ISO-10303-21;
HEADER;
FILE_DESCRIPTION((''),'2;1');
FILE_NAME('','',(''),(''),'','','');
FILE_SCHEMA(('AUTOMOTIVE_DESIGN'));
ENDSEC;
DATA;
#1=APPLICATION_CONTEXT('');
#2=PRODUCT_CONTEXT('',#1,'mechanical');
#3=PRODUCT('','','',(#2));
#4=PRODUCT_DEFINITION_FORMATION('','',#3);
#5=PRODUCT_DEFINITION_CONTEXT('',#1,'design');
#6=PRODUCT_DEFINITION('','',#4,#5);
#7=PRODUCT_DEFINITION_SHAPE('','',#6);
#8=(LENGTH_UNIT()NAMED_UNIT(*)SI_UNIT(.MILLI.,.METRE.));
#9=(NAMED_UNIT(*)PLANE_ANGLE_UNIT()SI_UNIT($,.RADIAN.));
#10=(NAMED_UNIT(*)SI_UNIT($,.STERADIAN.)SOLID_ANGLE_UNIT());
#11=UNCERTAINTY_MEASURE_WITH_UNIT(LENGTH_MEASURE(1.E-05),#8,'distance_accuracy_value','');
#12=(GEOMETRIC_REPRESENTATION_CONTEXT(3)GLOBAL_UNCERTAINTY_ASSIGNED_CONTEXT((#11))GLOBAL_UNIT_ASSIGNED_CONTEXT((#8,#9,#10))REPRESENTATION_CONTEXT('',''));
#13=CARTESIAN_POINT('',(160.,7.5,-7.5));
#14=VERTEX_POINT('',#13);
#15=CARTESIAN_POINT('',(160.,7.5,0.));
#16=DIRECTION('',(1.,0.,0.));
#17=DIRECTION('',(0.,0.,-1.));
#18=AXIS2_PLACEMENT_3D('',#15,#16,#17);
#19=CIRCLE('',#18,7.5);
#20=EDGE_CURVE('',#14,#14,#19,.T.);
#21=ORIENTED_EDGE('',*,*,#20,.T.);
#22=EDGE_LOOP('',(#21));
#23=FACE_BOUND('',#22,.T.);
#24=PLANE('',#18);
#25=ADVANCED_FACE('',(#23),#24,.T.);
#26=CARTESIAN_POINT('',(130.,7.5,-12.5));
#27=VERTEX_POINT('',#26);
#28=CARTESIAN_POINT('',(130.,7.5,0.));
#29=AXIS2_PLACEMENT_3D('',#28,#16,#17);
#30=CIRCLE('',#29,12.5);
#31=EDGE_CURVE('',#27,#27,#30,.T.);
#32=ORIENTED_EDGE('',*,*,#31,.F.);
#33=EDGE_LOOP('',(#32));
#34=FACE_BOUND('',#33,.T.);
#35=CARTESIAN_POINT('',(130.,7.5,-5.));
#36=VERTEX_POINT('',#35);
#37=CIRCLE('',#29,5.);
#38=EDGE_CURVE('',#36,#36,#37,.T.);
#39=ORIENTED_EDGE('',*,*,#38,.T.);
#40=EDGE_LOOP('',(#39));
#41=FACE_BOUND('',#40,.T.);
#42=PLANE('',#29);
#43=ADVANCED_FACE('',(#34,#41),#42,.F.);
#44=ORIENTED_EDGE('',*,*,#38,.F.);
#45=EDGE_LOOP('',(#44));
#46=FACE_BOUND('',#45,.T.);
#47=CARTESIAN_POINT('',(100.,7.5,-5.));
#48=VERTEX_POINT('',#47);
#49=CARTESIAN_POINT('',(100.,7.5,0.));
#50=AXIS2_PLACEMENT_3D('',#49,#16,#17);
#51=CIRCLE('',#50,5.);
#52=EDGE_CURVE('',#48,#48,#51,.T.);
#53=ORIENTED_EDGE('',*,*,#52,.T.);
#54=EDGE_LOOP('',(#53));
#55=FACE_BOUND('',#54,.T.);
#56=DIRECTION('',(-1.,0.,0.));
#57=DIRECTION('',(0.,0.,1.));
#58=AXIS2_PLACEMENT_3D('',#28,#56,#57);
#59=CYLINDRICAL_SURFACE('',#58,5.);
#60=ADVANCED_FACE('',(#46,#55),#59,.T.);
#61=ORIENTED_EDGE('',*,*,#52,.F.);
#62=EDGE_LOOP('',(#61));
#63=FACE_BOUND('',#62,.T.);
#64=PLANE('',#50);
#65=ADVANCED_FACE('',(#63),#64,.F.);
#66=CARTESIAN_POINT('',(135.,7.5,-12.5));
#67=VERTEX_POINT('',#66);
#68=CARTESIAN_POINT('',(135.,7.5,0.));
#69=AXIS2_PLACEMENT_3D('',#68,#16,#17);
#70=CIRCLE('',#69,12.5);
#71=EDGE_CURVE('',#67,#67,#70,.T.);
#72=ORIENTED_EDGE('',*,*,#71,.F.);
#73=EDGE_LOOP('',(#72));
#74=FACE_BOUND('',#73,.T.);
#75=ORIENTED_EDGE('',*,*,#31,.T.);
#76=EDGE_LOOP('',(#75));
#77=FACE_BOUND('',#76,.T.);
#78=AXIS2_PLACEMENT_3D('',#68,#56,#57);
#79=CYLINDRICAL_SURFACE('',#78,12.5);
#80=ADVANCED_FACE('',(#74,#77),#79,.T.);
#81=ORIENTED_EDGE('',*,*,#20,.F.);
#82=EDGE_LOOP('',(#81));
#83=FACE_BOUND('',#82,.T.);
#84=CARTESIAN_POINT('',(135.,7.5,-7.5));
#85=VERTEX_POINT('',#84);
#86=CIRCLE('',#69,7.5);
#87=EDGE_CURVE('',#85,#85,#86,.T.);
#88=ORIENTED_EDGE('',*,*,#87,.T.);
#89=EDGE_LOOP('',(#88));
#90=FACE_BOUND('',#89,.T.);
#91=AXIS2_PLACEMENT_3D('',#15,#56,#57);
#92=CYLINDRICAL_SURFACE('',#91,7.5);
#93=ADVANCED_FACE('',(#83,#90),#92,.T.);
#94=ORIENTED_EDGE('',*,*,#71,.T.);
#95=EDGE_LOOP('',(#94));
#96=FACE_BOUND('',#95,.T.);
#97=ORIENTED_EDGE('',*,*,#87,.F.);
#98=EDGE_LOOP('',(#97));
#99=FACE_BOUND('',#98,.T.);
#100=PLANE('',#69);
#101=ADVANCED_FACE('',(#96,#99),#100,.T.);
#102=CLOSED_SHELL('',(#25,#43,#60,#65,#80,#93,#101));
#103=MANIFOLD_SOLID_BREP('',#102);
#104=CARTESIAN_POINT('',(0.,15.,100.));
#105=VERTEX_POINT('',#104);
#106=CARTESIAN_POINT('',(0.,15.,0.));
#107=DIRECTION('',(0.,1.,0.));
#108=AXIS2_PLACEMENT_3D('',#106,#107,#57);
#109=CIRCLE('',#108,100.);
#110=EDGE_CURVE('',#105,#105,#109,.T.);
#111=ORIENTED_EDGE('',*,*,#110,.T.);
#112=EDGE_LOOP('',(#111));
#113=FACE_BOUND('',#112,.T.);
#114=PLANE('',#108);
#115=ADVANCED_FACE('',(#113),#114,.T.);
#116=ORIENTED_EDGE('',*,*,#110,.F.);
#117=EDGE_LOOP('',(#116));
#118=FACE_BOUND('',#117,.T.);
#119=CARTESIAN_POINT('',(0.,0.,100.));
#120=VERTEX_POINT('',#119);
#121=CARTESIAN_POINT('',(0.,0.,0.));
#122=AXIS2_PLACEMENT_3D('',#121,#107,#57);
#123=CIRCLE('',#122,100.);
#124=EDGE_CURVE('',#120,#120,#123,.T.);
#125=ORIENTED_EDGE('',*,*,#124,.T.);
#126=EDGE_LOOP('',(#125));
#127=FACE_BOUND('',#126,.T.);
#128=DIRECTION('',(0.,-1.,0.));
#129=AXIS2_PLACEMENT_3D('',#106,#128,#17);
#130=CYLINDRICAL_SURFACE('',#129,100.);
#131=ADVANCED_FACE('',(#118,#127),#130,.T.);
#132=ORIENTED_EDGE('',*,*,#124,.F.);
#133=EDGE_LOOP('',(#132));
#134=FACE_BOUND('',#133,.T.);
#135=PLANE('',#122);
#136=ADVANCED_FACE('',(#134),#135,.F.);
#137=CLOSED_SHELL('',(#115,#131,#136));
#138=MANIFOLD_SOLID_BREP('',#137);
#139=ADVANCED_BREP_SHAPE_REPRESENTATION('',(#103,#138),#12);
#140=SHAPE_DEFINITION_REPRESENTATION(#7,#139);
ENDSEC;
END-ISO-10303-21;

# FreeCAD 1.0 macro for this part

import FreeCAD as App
import Part
import Sketcher
Q = App.Units.Quantity

doc = App.newDocument("Part")
params = doc.addObject("Spreadsheet::Sheet", "Params")
for row, (alias, value) in enumerate([
    ("sketch1_diameter", "200 mm"),
    ("pad1_length", "15 mm"),
    ("sketch2_diameter", "10 mm"),
    ("pad2_length", "30 mm"),
    ("sketch3_diameter", "25 mm"),
    ("pad3_length", "5 mm"),
    ("sketch4_diameter", "15 mm"),
    ("pad4_length", "25 mm"),
], start=1):
    params.set(f"A{row}", alias)
    params.set(f"B{row}", "=" + value)
    params.setAlias(f"B{row}", alias)

body = doc.addObject("PartDesign::Body", "Body")

sketch1 = body.newObject("Sketcher::SketchObject", "Sketch")
sketch1.AttachmentSupport = (doc.getObject("XZ_Plane"), [""])
sketch1.MapMode = "FlatFace"
sketch1.addGeometry(Part.Circle(App.Vector(0, 0, 0), App.Vector(0, 0, 1), 100), False)
sketch1.addConstraint([
    Sketcher.Constraint("Coincident", 0, 3, -1, 1),
    Sketcher.Constraint("Diameter", 0, Q("200 mm")),
])
sketch1.setExpression("Constraints[1]", "Params.sketch1_diameter")
pad1 = body.newObject("PartDesign::Pad", "Pad")
pad1.Profile = sketch1
pad1.setExpression("Length", "Params.pad1_length")
pad1.Reversed = True
body2 = doc.addObject("PartDesign::Body", "Body001")

sketch2 = body2.newObject("Sketcher::SketchObject", "Sketch001")
sketch2.AttachmentSupport = (doc.getObject("YZ_Plane001"), [""])
sketch2.MapMode = "FlatFace"
sketch2.AttachmentOffset = App.Placement(App.Vector(0, 0, 100), App.Rotation())
sketch2.addGeometry(Part.Circle(App.Vector(8, 0, 0), App.Vector(0, 0, 1), 5), False)
sketch2.addConstraint([
    Sketcher.Constraint("PointOnObject", 0, 3, -1),
    Sketcher.Constraint("Diameter", 0, Q("10 mm")),
    Sketcher.Constraint("DistanceX", -1, 1, 0, 3, Q("7.5 mm")),
])
sketch2.setExpression("Constraints[1]", "Params.sketch2_diameter")
pad2 = body2.newObject("PartDesign::Pad", "Pad001")
pad2.Profile = sketch2
pad2.setExpression("Length", "Params.pad2_length")

sketch3 = body2.newObject("Sketcher::SketchObject", "Sketch002")
sketch3.AttachmentSupport = (doc.getObject("YZ_Plane001"), [""])
sketch3.MapMode = "FlatFace"
sketch3.AttachmentOffset = App.Placement(App.Vector(0, 0, 130), App.Rotation())
sketch3.addGeometry(Part.Circle(App.Vector(8, 0, 0), App.Vector(0, 0, 1), 12), False)
sketch3.addConstraint([
    Sketcher.Constraint("PointOnObject", 0, 3, -1),
    Sketcher.Constraint("Diameter", 0, Q("25 mm")),
    Sketcher.Constraint("DistanceX", -1, 1, 0, 3, Q("7.5 mm")),
])
sketch3.setExpression("Constraints[1]", "Params.sketch3_diameter")
pad3 = body2.newObject("PartDesign::Pad", "Pad002")
pad3.Profile = sketch3
pad3.setExpression("Length", "Params.pad3_length")

sketch4 = body2.newObject("Sketcher::SketchObject", "Sketch003")
sketch4.AttachmentSupport = (doc.getObject("YZ_Plane001"), [""])
sketch4.MapMode = "FlatFace"
sketch4.AttachmentOffset = App.Placement(App.Vector(0, 0, 135), App.Rotation())
sketch4.addGeometry(Part.Circle(App.Vector(8, 0, 0), App.Vector(0, 0, 1), 8), False)
sketch4.addConstraint([
    Sketcher.Constraint("PointOnObject", 0, 3, -1),
    Sketcher.Constraint("Diameter", 0, Q("15 mm")),
    Sketcher.Constraint("DistanceX", -1, 1, 0, 3, Q("7.5 mm")),
])
sketch4.setExpression("Constraints[1]", "Params.sketch4_diameter")
pad4 = body2.newObject("PartDesign::Pad", "Pad003")
pad4.Profile = sketch4
pad4.setExpression("Length", "Params.pad4_length")

doc.recompute()
